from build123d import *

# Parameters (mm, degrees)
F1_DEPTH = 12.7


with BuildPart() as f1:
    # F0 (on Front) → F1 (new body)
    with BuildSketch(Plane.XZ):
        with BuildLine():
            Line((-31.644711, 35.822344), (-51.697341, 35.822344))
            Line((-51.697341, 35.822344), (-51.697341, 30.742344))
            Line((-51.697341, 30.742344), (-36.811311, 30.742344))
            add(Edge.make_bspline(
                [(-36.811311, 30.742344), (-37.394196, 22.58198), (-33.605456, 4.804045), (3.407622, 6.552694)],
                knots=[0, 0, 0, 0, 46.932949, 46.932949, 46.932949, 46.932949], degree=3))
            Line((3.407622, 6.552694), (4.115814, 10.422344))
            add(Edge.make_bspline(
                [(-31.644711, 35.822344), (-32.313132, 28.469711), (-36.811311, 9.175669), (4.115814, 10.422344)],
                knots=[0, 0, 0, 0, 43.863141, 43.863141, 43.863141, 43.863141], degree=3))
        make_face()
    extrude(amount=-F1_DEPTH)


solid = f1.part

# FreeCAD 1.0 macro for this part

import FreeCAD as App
import Part
import Sketcher

V = App.Vector
Q = App.Units.Quantity

doc = App.newDocument("Part")
body = doc.addObject("PartDesign::Body", "Body")

# Sketch on XZ plane
sketch1 = doc.addObject("Sketcher::SketchObject", "Sketch")
body.addObject(sketch1)
sketch1.AttachmentSupport = (doc.XZ_Plane, [""])
sketch1.MapMode = "FlatFace"
sketch1.addGeometry([
    Part.LineSegment(V(-31.644711, 35.822344, 0), V(-51.697341, 35.822344, 0)),  # 0
    Part.LineSegment(V(-51.697341, 35.822344, 0), V(-51.697341, 30.742344, 0)),  # 1
    Part.LineSegment(V(-51.697341, 30.742344, 0), V(-36.811311, 30.742344, 0)),  # 2
    Part.BSplineCurve([V(-36.811311, 30.742344, 0), V(-37.394196, 22.58198, 0), V(-33.605456, 4.804045, 0), V(3.407622, 6.552694, 0)], [4, 4], [0, 46.932949], False, 3, [1, 1, 1, 1], False),  # 3
    Part.LineSegment(V(3.407622, 6.552694, 0), V(4.115814, 10.422344, 0)),  # 4
    Part.BSplineCurve([V(-31.644711, 35.822344, 0), V(-32.313132, 28.469711, 0), V(-36.811311, 9.175669, 0), V(4.115814, 10.422344, 0)], [4, 4], [0, 43.863141], False, 3, [1, 1, 1, 1], False),  # 5
], False)
sketch1.addConstraint([
    Sketcher.Constraint("Block", 3),
    Sketcher.Constraint("Block", 5),
    Sketcher.Constraint("Coincident", 0, 2, 1, 1),
    Sketcher.Constraint("Coincident", 1, 2, 2, 1),
    Sketcher.Constraint("Coincident", 2, 2, 3, 1),
    Sketcher.Constraint("Coincident", 3, 2, 4, 1),
    Sketcher.Constraint("Coincident", 4, 2, 5, 2),
    Sketcher.Constraint("Coincident", 5, 1, 0, 1),
    Sketcher.Constraint("Horizontal", 0),
    Sketcher.Constraint("Vertical", 1),
    Sketcher.Constraint("Horizontal", 2),
    Sketcher.Constraint("DistanceX", 0, 2, 0, 1, Q("20.05263 mm")),
])
pad1 = doc.addObject("PartDesign::Pad", "Pad")
body.addObject(pad1)
pad1.Profile = sketch1
pad1.Length = Q("0.5 in")
pad1.Reversed = True

doc.recompute()
